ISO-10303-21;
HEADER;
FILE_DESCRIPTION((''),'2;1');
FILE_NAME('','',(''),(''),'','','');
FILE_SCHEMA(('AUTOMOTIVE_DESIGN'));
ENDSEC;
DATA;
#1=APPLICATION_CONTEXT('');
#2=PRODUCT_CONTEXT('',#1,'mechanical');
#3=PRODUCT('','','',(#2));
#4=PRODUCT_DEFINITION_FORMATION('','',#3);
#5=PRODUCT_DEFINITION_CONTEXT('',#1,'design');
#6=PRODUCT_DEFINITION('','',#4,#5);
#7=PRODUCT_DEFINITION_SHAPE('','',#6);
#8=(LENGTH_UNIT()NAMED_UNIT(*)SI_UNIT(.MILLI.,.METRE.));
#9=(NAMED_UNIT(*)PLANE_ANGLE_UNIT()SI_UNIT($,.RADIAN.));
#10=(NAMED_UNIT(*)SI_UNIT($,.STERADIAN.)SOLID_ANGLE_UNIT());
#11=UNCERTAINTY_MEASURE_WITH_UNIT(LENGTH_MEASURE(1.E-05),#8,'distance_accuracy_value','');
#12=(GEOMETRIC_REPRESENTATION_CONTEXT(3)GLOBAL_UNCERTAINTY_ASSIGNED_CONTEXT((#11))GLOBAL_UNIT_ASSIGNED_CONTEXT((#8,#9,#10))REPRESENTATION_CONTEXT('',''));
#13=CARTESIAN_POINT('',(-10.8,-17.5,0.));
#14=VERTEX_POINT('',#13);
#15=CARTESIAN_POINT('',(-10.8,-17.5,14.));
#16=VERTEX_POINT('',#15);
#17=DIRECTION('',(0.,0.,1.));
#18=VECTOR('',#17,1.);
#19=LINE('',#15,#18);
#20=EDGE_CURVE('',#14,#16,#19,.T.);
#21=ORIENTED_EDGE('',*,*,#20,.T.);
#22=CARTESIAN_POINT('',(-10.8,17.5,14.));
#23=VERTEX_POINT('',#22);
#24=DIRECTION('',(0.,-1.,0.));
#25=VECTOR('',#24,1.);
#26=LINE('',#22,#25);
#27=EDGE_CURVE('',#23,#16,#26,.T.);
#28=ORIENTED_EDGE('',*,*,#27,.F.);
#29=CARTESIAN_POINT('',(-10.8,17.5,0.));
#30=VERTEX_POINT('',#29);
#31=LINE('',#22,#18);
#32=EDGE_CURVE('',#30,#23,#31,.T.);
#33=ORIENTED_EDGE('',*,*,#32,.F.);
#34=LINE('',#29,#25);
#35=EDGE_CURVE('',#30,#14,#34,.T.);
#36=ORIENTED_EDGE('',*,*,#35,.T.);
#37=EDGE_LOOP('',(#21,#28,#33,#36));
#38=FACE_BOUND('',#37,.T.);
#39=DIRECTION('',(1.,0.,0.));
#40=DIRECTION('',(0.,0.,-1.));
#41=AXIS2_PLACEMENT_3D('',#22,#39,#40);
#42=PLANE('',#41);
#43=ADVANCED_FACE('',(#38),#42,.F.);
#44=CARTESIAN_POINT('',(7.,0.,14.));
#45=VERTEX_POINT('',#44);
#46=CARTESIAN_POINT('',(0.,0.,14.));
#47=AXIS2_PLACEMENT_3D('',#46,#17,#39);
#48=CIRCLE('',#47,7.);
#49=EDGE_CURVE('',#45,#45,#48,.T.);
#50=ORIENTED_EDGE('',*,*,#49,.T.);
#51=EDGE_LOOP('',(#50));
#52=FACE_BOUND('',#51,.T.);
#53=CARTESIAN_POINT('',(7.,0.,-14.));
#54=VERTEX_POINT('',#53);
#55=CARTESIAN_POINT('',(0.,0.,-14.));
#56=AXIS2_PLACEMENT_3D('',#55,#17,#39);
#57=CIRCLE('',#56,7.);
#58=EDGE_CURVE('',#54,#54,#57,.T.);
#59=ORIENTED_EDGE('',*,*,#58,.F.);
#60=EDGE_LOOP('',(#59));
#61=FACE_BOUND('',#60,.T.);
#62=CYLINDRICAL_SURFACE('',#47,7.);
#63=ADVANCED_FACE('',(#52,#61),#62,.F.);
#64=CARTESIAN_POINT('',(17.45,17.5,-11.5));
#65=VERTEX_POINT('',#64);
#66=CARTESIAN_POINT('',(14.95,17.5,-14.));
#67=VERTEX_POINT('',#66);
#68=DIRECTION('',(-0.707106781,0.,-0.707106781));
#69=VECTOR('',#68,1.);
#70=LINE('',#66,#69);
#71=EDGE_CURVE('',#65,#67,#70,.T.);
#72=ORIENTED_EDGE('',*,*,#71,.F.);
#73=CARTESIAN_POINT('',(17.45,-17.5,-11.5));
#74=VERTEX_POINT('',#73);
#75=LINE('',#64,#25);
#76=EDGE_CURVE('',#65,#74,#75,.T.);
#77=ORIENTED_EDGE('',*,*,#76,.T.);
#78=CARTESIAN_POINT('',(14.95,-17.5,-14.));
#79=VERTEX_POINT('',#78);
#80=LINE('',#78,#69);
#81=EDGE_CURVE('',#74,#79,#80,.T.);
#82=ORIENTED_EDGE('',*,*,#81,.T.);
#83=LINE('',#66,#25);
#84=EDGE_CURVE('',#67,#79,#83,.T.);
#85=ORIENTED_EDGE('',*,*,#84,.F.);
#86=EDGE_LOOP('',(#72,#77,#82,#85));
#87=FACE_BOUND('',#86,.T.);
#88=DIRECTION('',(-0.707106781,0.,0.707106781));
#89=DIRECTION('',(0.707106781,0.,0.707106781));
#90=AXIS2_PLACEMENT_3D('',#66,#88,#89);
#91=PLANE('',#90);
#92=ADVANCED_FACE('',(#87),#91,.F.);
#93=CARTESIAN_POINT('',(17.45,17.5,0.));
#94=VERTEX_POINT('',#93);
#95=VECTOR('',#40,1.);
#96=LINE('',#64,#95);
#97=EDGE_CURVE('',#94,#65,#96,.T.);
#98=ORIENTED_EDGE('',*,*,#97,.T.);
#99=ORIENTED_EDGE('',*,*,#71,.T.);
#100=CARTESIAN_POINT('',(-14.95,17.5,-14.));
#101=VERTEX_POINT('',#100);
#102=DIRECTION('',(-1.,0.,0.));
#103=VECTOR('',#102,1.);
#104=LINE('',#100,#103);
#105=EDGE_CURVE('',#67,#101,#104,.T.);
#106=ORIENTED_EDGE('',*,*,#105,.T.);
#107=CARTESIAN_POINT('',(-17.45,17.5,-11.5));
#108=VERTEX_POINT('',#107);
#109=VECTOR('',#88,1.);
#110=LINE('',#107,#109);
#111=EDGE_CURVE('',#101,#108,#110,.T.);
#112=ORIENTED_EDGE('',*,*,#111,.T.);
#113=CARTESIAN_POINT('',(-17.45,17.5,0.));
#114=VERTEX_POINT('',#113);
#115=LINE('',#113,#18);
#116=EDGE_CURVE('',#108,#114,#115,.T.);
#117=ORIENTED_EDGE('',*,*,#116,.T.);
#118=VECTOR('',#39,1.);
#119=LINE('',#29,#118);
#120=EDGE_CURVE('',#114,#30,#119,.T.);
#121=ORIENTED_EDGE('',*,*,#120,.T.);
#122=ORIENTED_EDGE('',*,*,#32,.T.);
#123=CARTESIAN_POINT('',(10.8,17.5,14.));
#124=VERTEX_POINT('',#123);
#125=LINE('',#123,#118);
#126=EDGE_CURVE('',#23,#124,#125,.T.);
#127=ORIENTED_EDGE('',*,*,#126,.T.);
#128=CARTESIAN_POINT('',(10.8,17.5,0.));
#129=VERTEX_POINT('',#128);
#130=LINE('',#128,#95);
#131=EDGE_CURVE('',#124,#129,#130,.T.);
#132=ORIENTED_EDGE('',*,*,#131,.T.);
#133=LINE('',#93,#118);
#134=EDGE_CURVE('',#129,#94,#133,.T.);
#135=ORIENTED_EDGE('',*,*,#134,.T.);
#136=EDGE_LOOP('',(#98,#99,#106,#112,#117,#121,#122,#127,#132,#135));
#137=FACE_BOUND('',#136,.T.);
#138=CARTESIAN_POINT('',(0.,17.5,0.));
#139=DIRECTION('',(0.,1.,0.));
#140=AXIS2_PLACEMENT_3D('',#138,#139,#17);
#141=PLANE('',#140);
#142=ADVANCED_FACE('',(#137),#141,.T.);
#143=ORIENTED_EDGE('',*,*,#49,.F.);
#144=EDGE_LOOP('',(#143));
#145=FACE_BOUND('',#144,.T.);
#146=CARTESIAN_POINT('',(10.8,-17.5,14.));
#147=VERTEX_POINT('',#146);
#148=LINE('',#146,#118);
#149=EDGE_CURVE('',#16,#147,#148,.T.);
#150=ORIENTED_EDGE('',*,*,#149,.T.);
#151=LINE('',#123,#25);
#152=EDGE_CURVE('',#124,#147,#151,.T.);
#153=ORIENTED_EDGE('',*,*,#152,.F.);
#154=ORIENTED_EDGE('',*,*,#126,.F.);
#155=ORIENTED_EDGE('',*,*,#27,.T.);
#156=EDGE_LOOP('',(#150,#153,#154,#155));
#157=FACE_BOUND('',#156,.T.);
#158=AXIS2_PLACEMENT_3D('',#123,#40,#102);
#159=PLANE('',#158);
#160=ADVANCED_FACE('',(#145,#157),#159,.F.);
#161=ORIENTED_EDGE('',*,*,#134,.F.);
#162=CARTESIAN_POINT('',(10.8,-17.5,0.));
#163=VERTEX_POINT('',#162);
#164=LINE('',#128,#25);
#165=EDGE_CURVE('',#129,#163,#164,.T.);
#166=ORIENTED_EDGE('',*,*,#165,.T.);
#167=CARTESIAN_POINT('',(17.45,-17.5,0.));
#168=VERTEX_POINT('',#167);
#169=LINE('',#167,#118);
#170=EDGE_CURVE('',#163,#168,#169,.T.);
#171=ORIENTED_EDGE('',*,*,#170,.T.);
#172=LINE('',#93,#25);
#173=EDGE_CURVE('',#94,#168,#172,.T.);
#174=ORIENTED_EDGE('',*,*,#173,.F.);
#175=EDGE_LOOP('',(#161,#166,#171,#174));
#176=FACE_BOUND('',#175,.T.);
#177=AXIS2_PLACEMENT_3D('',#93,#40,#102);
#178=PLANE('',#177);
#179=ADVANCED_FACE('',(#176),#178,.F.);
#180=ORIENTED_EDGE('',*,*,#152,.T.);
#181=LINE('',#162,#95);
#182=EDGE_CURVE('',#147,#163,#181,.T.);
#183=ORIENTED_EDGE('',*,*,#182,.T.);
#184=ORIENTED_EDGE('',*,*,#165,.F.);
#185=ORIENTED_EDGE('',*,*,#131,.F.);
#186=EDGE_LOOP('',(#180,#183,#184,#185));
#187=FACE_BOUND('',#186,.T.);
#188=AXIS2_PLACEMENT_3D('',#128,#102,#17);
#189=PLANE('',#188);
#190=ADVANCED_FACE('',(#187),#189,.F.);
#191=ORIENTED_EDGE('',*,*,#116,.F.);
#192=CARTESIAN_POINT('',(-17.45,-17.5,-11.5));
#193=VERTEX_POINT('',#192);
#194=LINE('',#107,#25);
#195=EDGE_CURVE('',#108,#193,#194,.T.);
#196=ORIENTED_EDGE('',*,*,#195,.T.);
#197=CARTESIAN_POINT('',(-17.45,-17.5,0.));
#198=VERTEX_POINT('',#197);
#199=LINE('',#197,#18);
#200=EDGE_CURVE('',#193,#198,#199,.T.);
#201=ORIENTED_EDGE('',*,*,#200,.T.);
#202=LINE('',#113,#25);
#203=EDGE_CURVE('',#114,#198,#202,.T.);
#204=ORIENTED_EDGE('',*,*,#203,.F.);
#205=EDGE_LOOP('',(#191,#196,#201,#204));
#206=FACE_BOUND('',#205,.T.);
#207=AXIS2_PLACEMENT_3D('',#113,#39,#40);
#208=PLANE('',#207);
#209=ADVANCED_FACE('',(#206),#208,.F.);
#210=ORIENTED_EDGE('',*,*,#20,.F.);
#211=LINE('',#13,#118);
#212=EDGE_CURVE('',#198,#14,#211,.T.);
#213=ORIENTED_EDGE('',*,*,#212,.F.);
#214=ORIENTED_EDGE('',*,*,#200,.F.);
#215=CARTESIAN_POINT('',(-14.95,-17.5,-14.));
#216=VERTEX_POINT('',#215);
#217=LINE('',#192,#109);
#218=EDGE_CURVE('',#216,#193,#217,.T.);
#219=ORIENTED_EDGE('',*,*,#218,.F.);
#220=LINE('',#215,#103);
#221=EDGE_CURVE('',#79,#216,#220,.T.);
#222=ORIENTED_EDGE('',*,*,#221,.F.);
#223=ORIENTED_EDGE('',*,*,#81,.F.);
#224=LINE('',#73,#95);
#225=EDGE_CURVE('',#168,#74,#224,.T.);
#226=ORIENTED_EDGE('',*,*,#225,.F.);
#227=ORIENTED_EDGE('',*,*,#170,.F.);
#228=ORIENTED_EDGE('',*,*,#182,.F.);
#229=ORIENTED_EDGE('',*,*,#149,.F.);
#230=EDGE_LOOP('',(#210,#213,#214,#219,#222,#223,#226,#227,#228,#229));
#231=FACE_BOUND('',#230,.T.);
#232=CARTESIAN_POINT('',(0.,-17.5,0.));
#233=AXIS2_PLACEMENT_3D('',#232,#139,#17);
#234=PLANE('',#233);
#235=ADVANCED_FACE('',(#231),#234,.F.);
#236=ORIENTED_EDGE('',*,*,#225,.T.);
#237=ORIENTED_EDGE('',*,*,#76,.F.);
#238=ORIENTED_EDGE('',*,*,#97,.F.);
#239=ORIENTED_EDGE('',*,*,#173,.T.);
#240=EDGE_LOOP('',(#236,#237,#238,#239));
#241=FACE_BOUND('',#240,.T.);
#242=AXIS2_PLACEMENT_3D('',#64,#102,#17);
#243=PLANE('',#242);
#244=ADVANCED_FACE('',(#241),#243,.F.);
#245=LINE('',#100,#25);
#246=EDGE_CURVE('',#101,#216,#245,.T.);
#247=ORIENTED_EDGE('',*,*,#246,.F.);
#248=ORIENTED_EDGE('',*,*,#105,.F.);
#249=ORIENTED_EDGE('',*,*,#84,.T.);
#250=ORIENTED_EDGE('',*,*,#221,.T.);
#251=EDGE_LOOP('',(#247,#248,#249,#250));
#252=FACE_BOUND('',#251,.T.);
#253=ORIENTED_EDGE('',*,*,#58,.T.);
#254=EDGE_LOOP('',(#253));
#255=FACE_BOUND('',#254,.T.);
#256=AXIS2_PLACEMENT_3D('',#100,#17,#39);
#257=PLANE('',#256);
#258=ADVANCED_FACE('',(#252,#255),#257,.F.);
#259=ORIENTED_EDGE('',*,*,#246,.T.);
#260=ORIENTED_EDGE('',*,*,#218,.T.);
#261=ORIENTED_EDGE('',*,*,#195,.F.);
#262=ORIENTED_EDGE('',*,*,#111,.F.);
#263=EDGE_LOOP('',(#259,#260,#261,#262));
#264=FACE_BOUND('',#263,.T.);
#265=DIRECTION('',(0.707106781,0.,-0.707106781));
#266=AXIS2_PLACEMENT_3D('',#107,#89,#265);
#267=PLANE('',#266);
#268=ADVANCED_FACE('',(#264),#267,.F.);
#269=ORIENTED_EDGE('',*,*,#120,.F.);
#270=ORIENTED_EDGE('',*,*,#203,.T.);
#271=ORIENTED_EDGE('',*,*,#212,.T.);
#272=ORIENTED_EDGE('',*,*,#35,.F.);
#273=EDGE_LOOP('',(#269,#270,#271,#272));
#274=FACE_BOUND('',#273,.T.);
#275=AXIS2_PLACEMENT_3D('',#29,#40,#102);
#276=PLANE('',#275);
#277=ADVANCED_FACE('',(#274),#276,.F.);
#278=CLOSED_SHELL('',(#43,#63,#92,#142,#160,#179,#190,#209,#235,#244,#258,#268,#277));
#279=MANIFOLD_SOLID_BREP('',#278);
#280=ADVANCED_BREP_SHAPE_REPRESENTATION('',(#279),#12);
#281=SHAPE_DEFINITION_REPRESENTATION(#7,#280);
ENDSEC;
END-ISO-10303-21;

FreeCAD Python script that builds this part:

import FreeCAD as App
import Part
import Sketcher
from FreeCAD import Vector
Q = App.Units.Quantity

doc = App.newDocument("Part")
body = doc.addObject("PartDesign::Body", "Body")

# Sketch on XZ plane
sketch1 = body.newObject("Sketcher::SketchObject", "Sketch")
sketch1.AttachmentSupport = (doc.getObject("XZ_Plane"), [""])
sketch1.MapMode = "FlatFace"
sketch1.addGeometry([
    Part.LineSegment(Vector(-17.4, 0, 0), Vector(-10.8, 0, 0)),  # 0
    Part.LineSegment(Vector(-10.8, 0, 0), Vector(-10.8, 14, 0)),  # 1
    Part.LineSegment(Vector(-10.8, 14, 0), Vector(10.8, 14, 0)),  # 2
    Part.LineSegment(Vector(10.8, 14, 0), Vector(10.8, 0, 0)),  # 3
    Part.LineSegment(Vector(10.8, 0, 0), Vector(17.4, 0, 0)),  # 4
    Part.LineSegment(Vector(17.4, 0, 0), Vector(17.4, -11.5, 0)),  # 5
    Part.LineSegment(Vector(17.4, -11.5, 0), Vector(14.9, -14, 0)),  # 6
    Part.LineSegment(Vector(14.9, -14, 0), Vector(-14.9, -14, 0)),  # 7
    Part.LineSegment(Vector(-14.9, -14, 0), Vector(-17.4, -11.5, 0)),  # 8
    Part.LineSegment(Vector(-17.4, -11.5, 0), Vector(-17.4, 0, 0)),  # 9
], False)
sketch1.addConstraint([
    Sketcher.Constraint("Coincident", 0, 2, 1, 1),
    Sketcher.Constraint("Coincident", 1, 2, 2, 1),
    Sketcher.Constraint("Coincident", 2, 2, 3, 1),
    Sketcher.Constraint("Coincident", 3, 2, 4, 1),
    Sketcher.Constraint("Coincident", 4, 2, 5, 1),
    Sketcher.Constraint("Coincident", 5, 2, 6, 1),
    Sketcher.Constraint("Coincident", 6, 2, 7, 1),
    Sketcher.Constraint("Coincident", 7, 2, 8, 1),
    Sketcher.Constraint("Coincident", 8, 2, 9, 1),
    Sketcher.Constraint("Coincident", 9, 2, 0, 1),
    Sketcher.Constraint("Horizontal", 0),
    Sketcher.Constraint("Vertical", 1),
    Sketcher.Constraint("Horizontal", 2),
    Sketcher.Constraint("Vertical", 3),
    Sketcher.Constraint("Horizontal", 4),
    Sketcher.Constraint("Vertical", 5),
    Sketcher.Constraint("Horizontal", 7),
    Sketcher.Constraint("Vertical", 9),
    Sketcher.Constraint("Symmetric", 0, 2, 3, 2, -1, 1),
    Sketcher.Constraint("Symmetric", 5, 2, 8, 2, -2),
    Sketcher.Constraint("PointOnObject", 0, 2, -1),
    Sketcher.Constraint("Perpendicular", 6, 8),
    Sketcher.Constraint("Equal", 6, 8),
    Sketcher.Constraint("DistanceY", 1, 1, 1, 2, Q("14 mm")),
    Sketcher.Constraint("DistanceX", 2, 1, 2, 2, Q("21.6 mm")),
    Sketcher.Constraint("DistanceX", 7, 2, 7, 1, Q("29.9 mm")),
    Sketcher.Constraint("DistanceY", 5, 2, 5, 1, Q("11.5 mm")),
    Sketcher.Constraint("DistanceY", 6, 2, -1, 1, Q("14 mm")),
])
pad1 = body.newObject("PartDesign::Pad", "Pad")
pad1.Profile = sketch1
pad1.Length = 35
pad1.Midplane = True

# Sketch on XY plane
sketch2 = body.newObject("Sketcher::SketchObject", "Sketch001")
sketch2.AttachmentSupport = (doc.getObject("XY_Plane"), [""])
sketch2.MapMode = "FlatFace"
sketch2.AttachmentOffset = App.Placement(Vector(0, 0, 14), App.Rotation())
sketch2.addGeometry(Part.Circle(Vector(0, 0, 0), Vector(0, 0, 1), 7), False)
sketch2.addConstraint([
    Sketcher.Constraint("Coincident", 0, 3, -1, 1),
    Sketcher.Constraint("Diameter", 0, Q("14 mm")),
])
doc.recompute()
hole = body.newObject("PartDesign::Hole", "Hole")
hole.Profile = sketch2
hole.ThreadType = "None"
hole.Diameter = 14
hole.DepthType = "ThroughAll"

doc.recompute()
